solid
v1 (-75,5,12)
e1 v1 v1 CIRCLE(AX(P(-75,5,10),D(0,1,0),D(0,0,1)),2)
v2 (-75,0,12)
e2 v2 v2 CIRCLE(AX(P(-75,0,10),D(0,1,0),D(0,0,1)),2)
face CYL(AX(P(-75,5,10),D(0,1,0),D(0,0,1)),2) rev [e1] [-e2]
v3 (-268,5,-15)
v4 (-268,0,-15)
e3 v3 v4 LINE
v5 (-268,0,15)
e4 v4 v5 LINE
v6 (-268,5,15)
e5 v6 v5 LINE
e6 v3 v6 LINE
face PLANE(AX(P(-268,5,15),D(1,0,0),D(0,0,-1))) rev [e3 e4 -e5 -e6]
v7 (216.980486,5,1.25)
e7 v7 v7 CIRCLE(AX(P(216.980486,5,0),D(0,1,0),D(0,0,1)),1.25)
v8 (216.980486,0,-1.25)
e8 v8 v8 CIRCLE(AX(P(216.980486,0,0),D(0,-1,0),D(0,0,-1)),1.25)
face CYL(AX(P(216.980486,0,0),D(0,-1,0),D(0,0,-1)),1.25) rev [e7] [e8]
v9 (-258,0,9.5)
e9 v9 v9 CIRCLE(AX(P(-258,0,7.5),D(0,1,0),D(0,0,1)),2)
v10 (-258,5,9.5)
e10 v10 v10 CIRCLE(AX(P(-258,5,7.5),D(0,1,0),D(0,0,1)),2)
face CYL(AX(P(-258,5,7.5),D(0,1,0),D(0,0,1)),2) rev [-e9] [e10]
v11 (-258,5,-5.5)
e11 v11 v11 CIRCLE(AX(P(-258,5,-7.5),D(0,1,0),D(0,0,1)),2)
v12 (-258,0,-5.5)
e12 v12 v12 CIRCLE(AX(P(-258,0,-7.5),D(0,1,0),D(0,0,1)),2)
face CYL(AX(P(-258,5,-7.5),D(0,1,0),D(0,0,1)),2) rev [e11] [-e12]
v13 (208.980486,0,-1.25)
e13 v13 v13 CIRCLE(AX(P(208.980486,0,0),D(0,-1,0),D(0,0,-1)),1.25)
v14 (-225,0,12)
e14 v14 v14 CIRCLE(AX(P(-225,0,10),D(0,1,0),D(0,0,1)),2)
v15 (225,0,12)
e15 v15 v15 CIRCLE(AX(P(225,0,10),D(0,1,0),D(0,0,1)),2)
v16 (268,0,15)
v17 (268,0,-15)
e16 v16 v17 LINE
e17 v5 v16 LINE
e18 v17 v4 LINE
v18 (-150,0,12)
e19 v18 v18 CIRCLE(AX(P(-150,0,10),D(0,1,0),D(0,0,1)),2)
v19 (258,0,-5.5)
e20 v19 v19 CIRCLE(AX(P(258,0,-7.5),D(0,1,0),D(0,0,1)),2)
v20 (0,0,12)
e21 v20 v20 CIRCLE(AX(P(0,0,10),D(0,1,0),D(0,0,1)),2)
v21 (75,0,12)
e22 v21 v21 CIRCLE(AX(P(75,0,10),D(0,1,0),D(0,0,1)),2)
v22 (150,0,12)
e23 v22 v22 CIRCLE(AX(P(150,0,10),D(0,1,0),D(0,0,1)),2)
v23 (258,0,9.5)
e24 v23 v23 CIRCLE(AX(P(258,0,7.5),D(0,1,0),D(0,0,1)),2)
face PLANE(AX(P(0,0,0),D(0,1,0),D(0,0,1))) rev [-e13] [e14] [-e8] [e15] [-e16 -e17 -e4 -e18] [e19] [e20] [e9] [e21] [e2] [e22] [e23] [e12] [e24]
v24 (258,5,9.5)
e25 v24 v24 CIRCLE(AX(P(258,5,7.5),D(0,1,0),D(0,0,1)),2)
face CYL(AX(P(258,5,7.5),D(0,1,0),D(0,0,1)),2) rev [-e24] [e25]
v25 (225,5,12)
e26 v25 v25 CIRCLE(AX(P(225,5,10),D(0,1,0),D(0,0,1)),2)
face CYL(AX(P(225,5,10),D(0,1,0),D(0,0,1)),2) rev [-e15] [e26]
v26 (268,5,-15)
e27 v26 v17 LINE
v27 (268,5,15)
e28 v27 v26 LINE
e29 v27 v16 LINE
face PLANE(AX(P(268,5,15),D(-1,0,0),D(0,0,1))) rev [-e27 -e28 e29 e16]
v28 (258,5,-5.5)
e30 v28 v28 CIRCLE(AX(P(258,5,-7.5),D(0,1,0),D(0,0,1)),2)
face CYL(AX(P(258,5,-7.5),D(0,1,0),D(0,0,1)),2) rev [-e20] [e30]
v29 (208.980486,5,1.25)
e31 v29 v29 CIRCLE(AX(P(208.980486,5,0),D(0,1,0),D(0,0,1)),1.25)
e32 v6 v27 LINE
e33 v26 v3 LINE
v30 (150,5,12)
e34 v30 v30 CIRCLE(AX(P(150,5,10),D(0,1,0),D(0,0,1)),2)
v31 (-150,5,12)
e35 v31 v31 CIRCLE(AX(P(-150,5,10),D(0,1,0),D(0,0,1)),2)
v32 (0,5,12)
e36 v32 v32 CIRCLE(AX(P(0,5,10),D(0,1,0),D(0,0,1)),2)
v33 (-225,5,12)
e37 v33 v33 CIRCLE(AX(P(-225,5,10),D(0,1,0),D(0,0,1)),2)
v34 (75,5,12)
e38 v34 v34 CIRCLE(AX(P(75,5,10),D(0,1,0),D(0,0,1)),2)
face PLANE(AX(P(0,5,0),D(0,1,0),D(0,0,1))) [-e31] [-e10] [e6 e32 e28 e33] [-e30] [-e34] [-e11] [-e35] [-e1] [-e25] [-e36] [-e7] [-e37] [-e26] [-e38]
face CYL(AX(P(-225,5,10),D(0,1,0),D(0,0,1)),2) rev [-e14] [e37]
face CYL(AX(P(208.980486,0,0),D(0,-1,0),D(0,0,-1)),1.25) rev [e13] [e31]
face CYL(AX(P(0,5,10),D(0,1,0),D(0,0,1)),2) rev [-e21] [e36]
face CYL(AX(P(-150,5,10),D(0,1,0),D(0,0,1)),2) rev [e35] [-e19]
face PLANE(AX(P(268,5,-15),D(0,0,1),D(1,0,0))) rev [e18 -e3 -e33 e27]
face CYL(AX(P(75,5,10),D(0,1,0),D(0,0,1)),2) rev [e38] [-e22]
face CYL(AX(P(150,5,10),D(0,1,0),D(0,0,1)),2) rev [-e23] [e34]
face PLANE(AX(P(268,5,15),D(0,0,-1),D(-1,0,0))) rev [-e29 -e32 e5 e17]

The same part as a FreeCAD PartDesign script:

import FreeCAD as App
import Part
import Sketcher

doc = App.newDocument("Part")
body = doc.addObject("PartDesign::Body", "Body")

# Sketch on XZ plane
sketch1 = body.newObject("Sketcher::SketchObject", "Sketch")
sketch1.AttachmentSupport = (doc.getObject("XZ_Plane"), [""])
sketch1.MapMode = "FlatFace"
sketch1.addGeometry([
    Part.LineSegment(App.Vector(-268, -15, 0), App.Vector(-268, 15, 0)),
    Part.LineSegment(App.Vector(-268, 15, 0), App.Vector(268, 15, 0)),
    Part.LineSegment(App.Vector(268, 15, 0), App.Vector(268, -15, 0)),
    Part.LineSegment(App.Vector(268, -15, 0), App.Vector(-268, -15, 0)),
], False)
sketch1.addConstraint([
    Sketcher.Constraint("Coincident", 0, 2, 1, 1),
    Sketcher.Constraint("Coincident", 1, 2, 2, 1),
    Sketcher.Constraint("Coincident", 2, 2, 3, 1),
    Sketcher.Constraint("Coincident", 3, 2, 0, 1),
    Sketcher.Constraint("Vertical", 0),
    Sketcher.Constraint("Horizontal", 1),
    Sketcher.Constraint("Vertical", 2),
    Sketcher.Constraint("Horizontal", 3),
    Sketcher.Constraint("Symmetric", 0, 2, 2, 2, -1, 1),
    Sketcher.Constraint("DistanceX", 1, 1, 1, 2, 536.0),
    Sketcher.Constraint("DistanceY", 0, 1, 0, 2, 30.0),
])
pad1 = body.newObject("PartDesign::Pad", "Pad")
pad1.Profile = sketch1
pad1.Length = 5
pad1.Reversed = True

# Sketch on XZ plane
sketch2 = body.newObject("Sketcher::SketchObject", "Sketch001")
sketch2.AttachmentSupport = (doc.getObject("XZ_Plane"), [""])
sketch2.MapMode = "FlatFace"
sketch2.AttachmentOffset = App.Placement(App.Vector(0, 0, -5), App.Rotation())
sketch2.addGeometry([
    Part.Circle(App.Vector(-258, -7.5, 0), App.Vector(0, 0, 1), 2),  # 0
    Part.Circle(App.Vector(-258, 7.5, 0), App.Vector(0, 0, 1), 2),  # 1
    Part.Circle(App.Vector(-225, 10, 0), App.Vector(0, 0, 1), 2),  # 2
    Part.Circle(App.Vector(-150, 10, 0), App.Vector(0, 0, 1), 2),  # 3
    Part.Circle(App.Vector(-75, 10, 0), App.Vector(0, 0, 1), 2),  # 4
    Part.Circle(App.Vector(0, 10, 0), App.Vector(0, 0, 1), 2),  # 5
    Part.Circle(App.Vector(75, 10, 0), App.Vector(0, 0, 1), 2),  # 6
    Part.Circle(App.Vector(150, 10, 0), App.Vector(0, 0, 1), 2),  # 7
    Part.Circle(App.Vector(225, 10, 0), App.Vector(0, 0, 1), 2),  # 8
    Part.Circle(App.Vector(258, 7.5, 0), App.Vector(0, 0, 1), 2),  # 9
    Part.Circle(App.Vector(258, -7.5, 0), App.Vector(0, 0, 1), 2),  # 10
], False)
sketch2.addConstraint([
    Sketcher.Constraint("Equal", 0, 1),
    Sketcher.Constraint("Equal", 1, 2),
    Sketcher.Constraint("Equal", 2, 3),
    Sketcher.Constraint("Equal", 3, 4),
    Sketcher.Constraint("Equal", 4, 5),
    Sketcher.Constraint("Equal", 5, 6),
    Sketcher.Constraint("Equal", 6, 7),
    Sketcher.Constraint("Equal", 7, 8),
    Sketcher.Constraint("Equal", 8, 9),
    Sketcher.Constraint("Equal", 9, 10),
    Sketcher.Constraint("Symmetric", 0, 3, 9, 3, -1, 1),
    Sketcher.Constraint("Symmetric", 1, 3, 10, 3, -1, 1),
    Sketcher.Constraint("Symmetric", 4, 3, 6, 3, -2),
    Sketcher.Constraint("Symmetric", 3, 3, 7, 3, -2),
    Sketcher.Constraint("Symmetric", 2, 3, 8, 3, -2),
    Sketcher.Constraint("Symmetric", 1, 3, 9, 3, -2),
    Sketcher.Constraint("PointOnObject", 5, 3, -2),
    Sketcher.Constraint("Horizontal", 2, 3, 3, 3),
    Sketcher.Constraint("Horizontal", 3, 3, 4, 3),
    Sketcher.Constraint("Horizontal", 4, 3, 5, 3),
    Sketcher.Constraint("Diameter", 0, 4.0),
    Sketcher.Constraint("DistanceX", 0, 3, -1, 1, 258.0),
    Sketcher.Constraint("DistanceX", 2, 3, -1, 1, 225.0),
    Sketcher.Constraint("DistanceY", -1, 1, 2, 3, 10.0),
    Sketcher.Constraint("DistanceX", 3, 3, -1, 1, 150.0),
    Sketcher.Constraint("DistanceX", 4, 3, -1, 1, 75.0),
    Sketcher.Constraint("DistanceY", 0, 3, 1, 3, 15.0),
])
doc.recompute()
hole = body.newObject("PartDesign::Hole", "Hole")
hole.Profile = sketch2
hole.ThreadType = "None"
hole.Diameter = 4
hole.DepthType = "ThroughAll"
hole.Reversed = True

# Sketch on XZ plane
sketch3 = body.newObject("Sketcher::SketchObject", "Sketch002")
sketch3.AttachmentSupport = (doc.getObject("XZ_Plane"), [""])
sketch3.MapMode = "FlatFace"
sketch3.addGeometry([
    Part.Circle(App.Vector(217, 0, 0), App.Vector(0, 0, 1), 1.2),
    Part.Circle(App.Vector(209, 0, 0), App.Vector(0, 0, 1), 1.2),
], False)
sketch3.addConstraint([
    Sketcher.Constraint("Equal", 0, 1),
    Sketcher.Constraint("PointOnObject", 0, 3, -1),
    Sketcher.Constraint("PointOnObject", 1, 3, -1),
    Sketcher.Constraint("Diameter", 0, 2.5),
    Sketcher.Constraint("DistanceX", 1, 3, 0, 3, 8.0),
    Sketcher.Constraint("DistanceX", -1, 1, 0, 3, 216.980486),
])
doc.recompute()
hole2 = body.newObject("PartDesign::Hole", "Hole001")
hole2.Profile = sketch3
hole2.ThreadType = "None"
hole2.Diameter = 2.5
hole2.DepthType = "Dimension"
hole2.Depth = 7.5
hole2.DrillPoint = "Angled"
hole2.DrillPointAngle = 118

doc.recompute()
